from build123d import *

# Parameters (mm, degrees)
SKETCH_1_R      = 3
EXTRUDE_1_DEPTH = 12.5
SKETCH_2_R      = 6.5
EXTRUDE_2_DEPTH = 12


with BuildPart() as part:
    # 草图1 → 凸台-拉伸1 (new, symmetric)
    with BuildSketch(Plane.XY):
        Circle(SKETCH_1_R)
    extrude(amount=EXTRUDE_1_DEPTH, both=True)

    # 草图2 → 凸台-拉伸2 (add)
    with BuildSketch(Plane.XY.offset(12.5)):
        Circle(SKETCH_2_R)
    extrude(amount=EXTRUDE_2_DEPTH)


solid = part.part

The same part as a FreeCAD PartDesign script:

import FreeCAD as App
import Part
import Sketcher

V = App.Vector
Q = App.Units.Quantity

doc = App.newDocument("Part")
params = doc.addObject("Spreadsheet::Sheet", "Params")
for row, (alias, value) in enumerate([
    ("sketch1_diameter", "6 mm"),
    ("pad1_length", "25 mm"),
    ("sketch2_diameter", "13 mm"),
    ("pad2_length", "12 mm"),
], start=1):
    params.set(f"A{row}", alias)
    params.set(f"B{row}", "=" + value)
    params.setAlias(f"B{row}", alias)

body = doc.addObject("PartDesign::Body", "Body")

# Sketch on XY plane
sketch1 = doc.addObject("Sketcher::SketchObject", "Sketch")
body.addObject(sketch1)
sketch1.AttachmentSupport = (doc.XY_Plane, [""])
sketch1.MapMode = "FlatFace"
sketch1.addGeometry(Part.Circle(V(0, 0, 0), V(0, 0, 1), 3), False)
sketch1.addConstraint(Sketcher.Constraint("Coincident", 0, 3, -1, 1))
sketch1.addConstraint(Sketcher.Constraint("Diameter", 0, Q("6 mm")))
sketch1.setExpression("Constraints[1]", "Params.sketch1_diameter")
pad1 = doc.addObject("PartDesign::Pad", "Pad")
body.addObject(pad1)
pad1.Profile = sketch1
pad1.setExpression("Length", "Params.pad1_length")
pad1.Midplane = True

# Sketch on XY plane
sketch2 = doc.addObject("Sketcher::SketchObject", "Sketch001")
body.addObject(sketch2)
sketch2.AttachmentSupport = (doc.XY_Plane, [""])
sketch2.MapMode = "FlatFace"
sketch2.AttachmentOffset = App.Placement(V(0, 0, 12.5), App.Rotation())
sketch2.addGeometry(Part.Circle(V(0, 0, 0), V(0, 0, 1), 6), False)
sketch2.addConstraint(Sketcher.Constraint("Coincident", 0, 3, -1, 1))
sketch2.addConstraint(Sketcher.Constraint("Diameter", 0, Q("13 mm")))
sketch2.setExpression("Constraints[1]", "Params.sketch2_diameter")
pad2 = doc.addObject("PartDesign::Pad", "Pad001")
body.addObject(pad2)
pad2.Profile = sketch2
pad2.setExpression("Length", "Params.pad2_length")

doc.recompute()
